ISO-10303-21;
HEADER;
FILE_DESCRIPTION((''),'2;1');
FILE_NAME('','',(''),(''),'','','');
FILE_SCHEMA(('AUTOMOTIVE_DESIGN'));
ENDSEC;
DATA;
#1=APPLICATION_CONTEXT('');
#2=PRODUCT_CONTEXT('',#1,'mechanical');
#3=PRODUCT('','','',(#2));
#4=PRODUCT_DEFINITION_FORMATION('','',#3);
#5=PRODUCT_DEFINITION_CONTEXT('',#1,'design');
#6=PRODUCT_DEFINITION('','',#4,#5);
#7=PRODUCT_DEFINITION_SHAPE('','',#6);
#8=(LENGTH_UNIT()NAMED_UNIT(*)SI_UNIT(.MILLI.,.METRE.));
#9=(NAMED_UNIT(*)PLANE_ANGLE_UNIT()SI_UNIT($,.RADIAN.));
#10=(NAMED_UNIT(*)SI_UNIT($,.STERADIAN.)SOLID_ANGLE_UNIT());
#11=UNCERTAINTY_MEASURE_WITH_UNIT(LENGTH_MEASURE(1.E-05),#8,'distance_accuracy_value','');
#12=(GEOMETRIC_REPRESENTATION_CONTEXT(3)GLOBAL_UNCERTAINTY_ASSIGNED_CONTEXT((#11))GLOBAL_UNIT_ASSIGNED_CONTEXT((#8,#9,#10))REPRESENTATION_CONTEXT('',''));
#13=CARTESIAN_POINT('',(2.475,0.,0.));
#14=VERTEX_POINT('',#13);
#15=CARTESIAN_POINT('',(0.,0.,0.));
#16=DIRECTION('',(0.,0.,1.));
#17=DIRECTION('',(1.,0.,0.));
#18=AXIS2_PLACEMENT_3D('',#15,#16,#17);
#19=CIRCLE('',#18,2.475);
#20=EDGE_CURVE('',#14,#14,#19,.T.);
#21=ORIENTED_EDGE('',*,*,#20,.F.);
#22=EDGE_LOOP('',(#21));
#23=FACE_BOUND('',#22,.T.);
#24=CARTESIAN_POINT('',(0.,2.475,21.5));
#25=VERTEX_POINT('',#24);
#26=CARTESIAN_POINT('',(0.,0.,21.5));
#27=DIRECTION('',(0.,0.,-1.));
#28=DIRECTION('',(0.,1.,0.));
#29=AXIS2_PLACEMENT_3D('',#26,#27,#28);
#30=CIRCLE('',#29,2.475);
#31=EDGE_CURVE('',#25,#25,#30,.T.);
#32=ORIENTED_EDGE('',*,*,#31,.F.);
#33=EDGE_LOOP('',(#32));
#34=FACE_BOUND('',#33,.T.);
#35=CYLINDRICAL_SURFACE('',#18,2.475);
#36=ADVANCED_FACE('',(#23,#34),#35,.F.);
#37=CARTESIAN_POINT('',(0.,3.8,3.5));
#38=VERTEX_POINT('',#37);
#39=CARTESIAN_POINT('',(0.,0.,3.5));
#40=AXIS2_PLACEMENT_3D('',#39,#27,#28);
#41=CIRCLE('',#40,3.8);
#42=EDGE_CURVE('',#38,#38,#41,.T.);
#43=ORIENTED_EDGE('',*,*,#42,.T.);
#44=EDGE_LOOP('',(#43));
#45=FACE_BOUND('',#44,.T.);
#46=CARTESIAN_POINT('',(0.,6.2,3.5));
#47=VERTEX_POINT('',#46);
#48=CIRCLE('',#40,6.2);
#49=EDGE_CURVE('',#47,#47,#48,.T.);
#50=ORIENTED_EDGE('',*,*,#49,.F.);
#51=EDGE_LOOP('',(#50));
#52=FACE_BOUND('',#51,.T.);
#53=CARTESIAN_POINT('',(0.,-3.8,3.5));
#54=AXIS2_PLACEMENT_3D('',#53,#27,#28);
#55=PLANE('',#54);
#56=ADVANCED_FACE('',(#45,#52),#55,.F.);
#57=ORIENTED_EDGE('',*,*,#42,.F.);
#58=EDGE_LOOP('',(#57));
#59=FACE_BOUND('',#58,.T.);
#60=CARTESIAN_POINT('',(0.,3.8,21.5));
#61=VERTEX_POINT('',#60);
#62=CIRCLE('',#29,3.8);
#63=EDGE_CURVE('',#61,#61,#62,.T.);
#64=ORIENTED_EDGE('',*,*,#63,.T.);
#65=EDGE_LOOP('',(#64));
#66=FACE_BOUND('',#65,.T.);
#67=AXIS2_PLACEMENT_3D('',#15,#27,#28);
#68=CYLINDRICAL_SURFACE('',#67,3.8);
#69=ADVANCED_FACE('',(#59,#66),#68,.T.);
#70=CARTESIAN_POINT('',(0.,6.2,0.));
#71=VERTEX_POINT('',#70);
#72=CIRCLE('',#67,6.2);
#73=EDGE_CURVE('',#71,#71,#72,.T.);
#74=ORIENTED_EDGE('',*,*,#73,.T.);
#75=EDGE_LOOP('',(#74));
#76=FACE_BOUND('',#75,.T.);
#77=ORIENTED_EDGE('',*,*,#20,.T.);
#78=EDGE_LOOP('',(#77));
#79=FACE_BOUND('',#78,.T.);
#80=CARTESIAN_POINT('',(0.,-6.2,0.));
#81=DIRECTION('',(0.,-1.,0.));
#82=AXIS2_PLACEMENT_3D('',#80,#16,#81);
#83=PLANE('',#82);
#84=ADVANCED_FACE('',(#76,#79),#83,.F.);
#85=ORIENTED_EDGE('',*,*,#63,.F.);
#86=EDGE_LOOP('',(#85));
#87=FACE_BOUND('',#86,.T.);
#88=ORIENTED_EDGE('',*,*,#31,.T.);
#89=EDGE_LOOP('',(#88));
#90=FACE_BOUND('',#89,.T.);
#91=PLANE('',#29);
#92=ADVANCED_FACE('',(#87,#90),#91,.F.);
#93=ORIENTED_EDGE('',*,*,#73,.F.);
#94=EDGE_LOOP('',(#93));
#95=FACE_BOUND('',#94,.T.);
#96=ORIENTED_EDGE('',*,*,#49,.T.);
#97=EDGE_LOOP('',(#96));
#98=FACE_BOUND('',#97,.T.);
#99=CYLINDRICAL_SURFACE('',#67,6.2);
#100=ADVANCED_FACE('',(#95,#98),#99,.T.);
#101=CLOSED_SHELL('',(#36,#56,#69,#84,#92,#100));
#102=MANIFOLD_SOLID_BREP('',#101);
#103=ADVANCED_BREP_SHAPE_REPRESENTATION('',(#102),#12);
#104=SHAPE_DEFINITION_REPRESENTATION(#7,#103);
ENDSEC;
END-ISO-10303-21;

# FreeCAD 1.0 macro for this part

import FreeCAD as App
import Part
import Sketcher

V = App.Vector

doc = App.newDocument("Part")
body = doc.addObject("PartDesign::Body", "Body")

sketch1 = body.newObject("Sketcher::SketchObject", "Sketch")
sketch1.AttachmentSupport = (doc.getObject("YZ_Plane"), [""])
sketch1.MapMode = "FlatFace"
sketch1.addGeometry(Part.LineSegment(V(0, 0, 0), V(0, 21.5, 0)), False)
sketch1.addGeometry(Part.LineSegment(V(0, 21.5, 0), V(-3.8, 21.5, 0)), False)
sketch1.addGeometry(Part.LineSegment(V(-3.8, 21.5, 0), V(-3.8, 3.5, 0)), False)
sketch1.addGeometry(Part.LineSegment(V(-3.8, 3.5, 0), V(-6.2, 3.5, 0)), False)
sketch1.addGeometry(Part.LineSegment(V(-6.2, 3.5, 0), V(-6.2, 0, 0)), False)
sketch1.addGeometry(Part.LineSegment(V(-6.2, 0, 0), V(0, 0, 0)), False)
sketch1.addConstraint(Sketcher.Constraint("Coincident", 0, 2, 1, 1))
sketch1.addConstraint(Sketcher.Constraint("Coincident", 1, 2, 2, 1))
sketch1.addConstraint(Sketcher.Constraint("Coincident", 2, 2, 3, 1))
sketch1.addConstraint(Sketcher.Constraint("Coincident", 3, 2, 4, 1))
sketch1.addConstraint(Sketcher.Constraint("Coincident", 4, 2, 5, 1))
sketch1.addConstraint(Sketcher.Constraint("Coincident", 5, 2, 0, 1))
sketch1.addConstraint(Sketcher.Constraint("Vertical", 0))
sketch1.addConstraint(Sketcher.Constraint("Horizontal", 1))
sketch1.addConstraint(Sketcher.Constraint("Vertical", 2))
sketch1.addConstraint(Sketcher.Constraint("Horizontal", 3))
sketch1.addConstraint(Sketcher.Constraint("Vertical", 4))
sketch1.addConstraint(Sketcher.Constraint("Horizontal", 5))
sketch1.addConstraint(Sketcher.Constraint("Coincident", 5, 2, -1, 1))
sketch1.addConstraint(Sketcher.Constraint("DistanceY", 2, 2, 2, 1, 18.0))
sketch1.addConstraint(Sketcher.Constraint("DistanceX", 1, 2, 1, 1, 3.8))
sketch1.addConstraint(Sketcher.Constraint("DistanceX", 3, 2, 3, 1, 2.4))
sketch1.addConstraint(Sketcher.Constraint("DistanceY", 0, 1, 0, 2, 21.5))
revolution = body.newObject("PartDesign::Revolution", "Revolution")
revolution.Profile = sketch1
revolution.ReferenceAxis = (sketch1, ["V_Axis"])
revolution.Angle = 360

sketch2 = body.newObject("Sketcher::SketchObject", "Sketch001")
sketch2.AttachmentSupport = (doc.getObject("XY_Plane"), [""])
sketch2.MapMode = "FlatFace"
sketch2.AttachmentOffset = App.Placement(V(0, 0, 21.5), App.Rotation())
sketch2.addGeometry(Part.Circle(V(0, 0, 0), V(0, 0, 1), 2.5), False)
sketch2.addConstraint(Sketcher.Constraint("Coincident", 0, 3, -1, 1))
sketch2.addConstraint(Sketcher.Constraint("Diameter", 0, 4.95))
pocket1 = body.newObject("PartDesign::Pocket", "Pocket")
pocket1.Profile = sketch2
pocket1.Type = "ThroughAll"
pocket1.Midplane = True

doc.recompute()
